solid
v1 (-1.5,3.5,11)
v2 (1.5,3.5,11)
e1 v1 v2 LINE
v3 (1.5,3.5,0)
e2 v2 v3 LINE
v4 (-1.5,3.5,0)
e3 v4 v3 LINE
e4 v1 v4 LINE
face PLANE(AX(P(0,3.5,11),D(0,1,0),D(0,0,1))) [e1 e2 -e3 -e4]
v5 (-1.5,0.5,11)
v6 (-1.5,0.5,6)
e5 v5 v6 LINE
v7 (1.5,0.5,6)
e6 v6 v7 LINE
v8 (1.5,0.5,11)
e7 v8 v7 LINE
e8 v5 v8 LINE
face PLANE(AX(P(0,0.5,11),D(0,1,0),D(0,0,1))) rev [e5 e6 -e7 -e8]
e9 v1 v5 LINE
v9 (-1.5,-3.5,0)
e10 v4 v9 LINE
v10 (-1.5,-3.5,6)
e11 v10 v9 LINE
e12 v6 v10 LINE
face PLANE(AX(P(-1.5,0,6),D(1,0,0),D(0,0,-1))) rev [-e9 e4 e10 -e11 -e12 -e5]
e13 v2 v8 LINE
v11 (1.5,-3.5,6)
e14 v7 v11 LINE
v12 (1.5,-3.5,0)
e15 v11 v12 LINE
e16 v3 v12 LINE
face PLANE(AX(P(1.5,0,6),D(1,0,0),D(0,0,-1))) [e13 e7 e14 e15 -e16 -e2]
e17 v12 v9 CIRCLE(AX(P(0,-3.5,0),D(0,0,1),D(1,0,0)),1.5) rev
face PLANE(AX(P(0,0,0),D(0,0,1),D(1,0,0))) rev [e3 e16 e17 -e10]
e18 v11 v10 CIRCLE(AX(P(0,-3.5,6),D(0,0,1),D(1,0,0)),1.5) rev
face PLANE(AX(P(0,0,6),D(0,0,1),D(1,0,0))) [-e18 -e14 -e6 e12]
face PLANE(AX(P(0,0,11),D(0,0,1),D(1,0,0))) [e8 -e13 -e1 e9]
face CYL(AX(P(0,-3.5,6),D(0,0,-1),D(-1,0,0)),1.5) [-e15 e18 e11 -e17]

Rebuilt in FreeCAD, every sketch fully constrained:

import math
import FreeCAD as App
import Part
import Sketcher
from FreeCAD import Vector
Q = App.Units.Quantity

doc = App.newDocument("Part")
body = doc.addObject("PartDesign::Body", "Body")

# Sketch on XY plane
sketch1 = doc.addObject("Sketcher::SketchObject", "Sketch")
body.addObject(sketch1)
sketch1.AttachmentSupport = (doc.XY_Plane, [""])
sketch1.MapMode = "FlatFace"
sketch1.addGeometry([
    Part.LineSegment(Vector(1.5, 0.5, 0), Vector(-1.5, 0.5, 0)),
    Part.LineSegment(Vector(-1.5, 0.5, 0), Vector(-1.5, -3.5, 0)),
    Part.ArcOfCircle(Part.Circle(Vector(0, -3.5, 0), Vector(0, 0, 1), 1.5), math.radians(180), math.radians(360)),
    Part.LineSegment(Vector(1.5, -3.5, 0), Vector(1.5, 0.5, 0)),
], False)
sketch1.addConstraint([
    Sketcher.Constraint("Coincident", 0, 2, 1, 1),
    Sketcher.Constraint("Tangent", 1, 2, 2, 1),
    Sketcher.Constraint("Tangent", 2, 2, 3, 1),
    Sketcher.Constraint("Coincident", 3, 2, 0, 1),
    Sketcher.Constraint("Horizontal", 0),
    Sketcher.Constraint("Vertical", 1),
    Sketcher.Constraint("Vertical", 3),
    Sketcher.Constraint("PointOnObject", 2, 3, -2),
    Sketcher.Constraint("Radius", 2, Q("1.5 mm")),
    Sketcher.Constraint("DistanceY", 1, 2, 1, 1, Q("4 mm")),
    Sketcher.Constraint("DistanceY", 2, 3, -1, 1, Q("3.5 mm")),
])
pad1 = doc.addObject("PartDesign::Pad", "Pad")
body.addObject(pad1)
pad1.Profile = sketch1
pad1.Length = 6

# Sketch on XY plane
sketch2 = doc.addObject("Sketcher::SketchObject", "Sketch001")
body.addObject(sketch2)
sketch2.AttachmentSupport = (doc.XY_Plane, [""])
sketch2.MapMode = "FlatFace"
sketch2.addGeometry([
    Part.LineSegment(Vector(-1.5, 3.5, 0), Vector(-1.5, 0.5, 0)),
    Part.LineSegment(Vector(-1.5, 0.5, 0), Vector(1.5, 0.5, 0)),
    Part.LineSegment(Vector(1.5, 0.5, 0), Vector(1.5, 3.5, 0)),
    Part.LineSegment(Vector(1.5, 3.5, 0), Vector(-1.5, 3.5, 0)),
], False)
sketch2.addConstraint([
    Sketcher.Constraint("Coincident", 0, 2, 1, 1),
    Sketcher.Constraint("Coincident", 1, 2, 2, 1),
    Sketcher.Constraint("Coincident", 2, 2, 3, 1),
    Sketcher.Constraint("Coincident", 3, 2, 0, 1),
    Sketcher.Constraint("Vertical", 0),
    Sketcher.Constraint("Horizontal", 1),
    Sketcher.Constraint("Vertical", 2),
    Sketcher.Constraint("Horizontal", 3),
    Sketcher.Constraint("Equal", 3, 0),
    Sketcher.Constraint("DistanceX", 1, 1, 1, 2, Q("3 mm")),
    Sketcher.Constraint("DistanceX", 0, 2, -1, 1, Q("1.5 mm")),
    Sketcher.Constraint("DistanceY", -1, 1, 0, 2, Q("0.5 mm")),
])
pad2 = doc.addObject("PartDesign::Pad", "Pad001")
body.addObject(pad2)
pad2.Profile = sketch2
pad2.Length = 11

doc.recompute()
